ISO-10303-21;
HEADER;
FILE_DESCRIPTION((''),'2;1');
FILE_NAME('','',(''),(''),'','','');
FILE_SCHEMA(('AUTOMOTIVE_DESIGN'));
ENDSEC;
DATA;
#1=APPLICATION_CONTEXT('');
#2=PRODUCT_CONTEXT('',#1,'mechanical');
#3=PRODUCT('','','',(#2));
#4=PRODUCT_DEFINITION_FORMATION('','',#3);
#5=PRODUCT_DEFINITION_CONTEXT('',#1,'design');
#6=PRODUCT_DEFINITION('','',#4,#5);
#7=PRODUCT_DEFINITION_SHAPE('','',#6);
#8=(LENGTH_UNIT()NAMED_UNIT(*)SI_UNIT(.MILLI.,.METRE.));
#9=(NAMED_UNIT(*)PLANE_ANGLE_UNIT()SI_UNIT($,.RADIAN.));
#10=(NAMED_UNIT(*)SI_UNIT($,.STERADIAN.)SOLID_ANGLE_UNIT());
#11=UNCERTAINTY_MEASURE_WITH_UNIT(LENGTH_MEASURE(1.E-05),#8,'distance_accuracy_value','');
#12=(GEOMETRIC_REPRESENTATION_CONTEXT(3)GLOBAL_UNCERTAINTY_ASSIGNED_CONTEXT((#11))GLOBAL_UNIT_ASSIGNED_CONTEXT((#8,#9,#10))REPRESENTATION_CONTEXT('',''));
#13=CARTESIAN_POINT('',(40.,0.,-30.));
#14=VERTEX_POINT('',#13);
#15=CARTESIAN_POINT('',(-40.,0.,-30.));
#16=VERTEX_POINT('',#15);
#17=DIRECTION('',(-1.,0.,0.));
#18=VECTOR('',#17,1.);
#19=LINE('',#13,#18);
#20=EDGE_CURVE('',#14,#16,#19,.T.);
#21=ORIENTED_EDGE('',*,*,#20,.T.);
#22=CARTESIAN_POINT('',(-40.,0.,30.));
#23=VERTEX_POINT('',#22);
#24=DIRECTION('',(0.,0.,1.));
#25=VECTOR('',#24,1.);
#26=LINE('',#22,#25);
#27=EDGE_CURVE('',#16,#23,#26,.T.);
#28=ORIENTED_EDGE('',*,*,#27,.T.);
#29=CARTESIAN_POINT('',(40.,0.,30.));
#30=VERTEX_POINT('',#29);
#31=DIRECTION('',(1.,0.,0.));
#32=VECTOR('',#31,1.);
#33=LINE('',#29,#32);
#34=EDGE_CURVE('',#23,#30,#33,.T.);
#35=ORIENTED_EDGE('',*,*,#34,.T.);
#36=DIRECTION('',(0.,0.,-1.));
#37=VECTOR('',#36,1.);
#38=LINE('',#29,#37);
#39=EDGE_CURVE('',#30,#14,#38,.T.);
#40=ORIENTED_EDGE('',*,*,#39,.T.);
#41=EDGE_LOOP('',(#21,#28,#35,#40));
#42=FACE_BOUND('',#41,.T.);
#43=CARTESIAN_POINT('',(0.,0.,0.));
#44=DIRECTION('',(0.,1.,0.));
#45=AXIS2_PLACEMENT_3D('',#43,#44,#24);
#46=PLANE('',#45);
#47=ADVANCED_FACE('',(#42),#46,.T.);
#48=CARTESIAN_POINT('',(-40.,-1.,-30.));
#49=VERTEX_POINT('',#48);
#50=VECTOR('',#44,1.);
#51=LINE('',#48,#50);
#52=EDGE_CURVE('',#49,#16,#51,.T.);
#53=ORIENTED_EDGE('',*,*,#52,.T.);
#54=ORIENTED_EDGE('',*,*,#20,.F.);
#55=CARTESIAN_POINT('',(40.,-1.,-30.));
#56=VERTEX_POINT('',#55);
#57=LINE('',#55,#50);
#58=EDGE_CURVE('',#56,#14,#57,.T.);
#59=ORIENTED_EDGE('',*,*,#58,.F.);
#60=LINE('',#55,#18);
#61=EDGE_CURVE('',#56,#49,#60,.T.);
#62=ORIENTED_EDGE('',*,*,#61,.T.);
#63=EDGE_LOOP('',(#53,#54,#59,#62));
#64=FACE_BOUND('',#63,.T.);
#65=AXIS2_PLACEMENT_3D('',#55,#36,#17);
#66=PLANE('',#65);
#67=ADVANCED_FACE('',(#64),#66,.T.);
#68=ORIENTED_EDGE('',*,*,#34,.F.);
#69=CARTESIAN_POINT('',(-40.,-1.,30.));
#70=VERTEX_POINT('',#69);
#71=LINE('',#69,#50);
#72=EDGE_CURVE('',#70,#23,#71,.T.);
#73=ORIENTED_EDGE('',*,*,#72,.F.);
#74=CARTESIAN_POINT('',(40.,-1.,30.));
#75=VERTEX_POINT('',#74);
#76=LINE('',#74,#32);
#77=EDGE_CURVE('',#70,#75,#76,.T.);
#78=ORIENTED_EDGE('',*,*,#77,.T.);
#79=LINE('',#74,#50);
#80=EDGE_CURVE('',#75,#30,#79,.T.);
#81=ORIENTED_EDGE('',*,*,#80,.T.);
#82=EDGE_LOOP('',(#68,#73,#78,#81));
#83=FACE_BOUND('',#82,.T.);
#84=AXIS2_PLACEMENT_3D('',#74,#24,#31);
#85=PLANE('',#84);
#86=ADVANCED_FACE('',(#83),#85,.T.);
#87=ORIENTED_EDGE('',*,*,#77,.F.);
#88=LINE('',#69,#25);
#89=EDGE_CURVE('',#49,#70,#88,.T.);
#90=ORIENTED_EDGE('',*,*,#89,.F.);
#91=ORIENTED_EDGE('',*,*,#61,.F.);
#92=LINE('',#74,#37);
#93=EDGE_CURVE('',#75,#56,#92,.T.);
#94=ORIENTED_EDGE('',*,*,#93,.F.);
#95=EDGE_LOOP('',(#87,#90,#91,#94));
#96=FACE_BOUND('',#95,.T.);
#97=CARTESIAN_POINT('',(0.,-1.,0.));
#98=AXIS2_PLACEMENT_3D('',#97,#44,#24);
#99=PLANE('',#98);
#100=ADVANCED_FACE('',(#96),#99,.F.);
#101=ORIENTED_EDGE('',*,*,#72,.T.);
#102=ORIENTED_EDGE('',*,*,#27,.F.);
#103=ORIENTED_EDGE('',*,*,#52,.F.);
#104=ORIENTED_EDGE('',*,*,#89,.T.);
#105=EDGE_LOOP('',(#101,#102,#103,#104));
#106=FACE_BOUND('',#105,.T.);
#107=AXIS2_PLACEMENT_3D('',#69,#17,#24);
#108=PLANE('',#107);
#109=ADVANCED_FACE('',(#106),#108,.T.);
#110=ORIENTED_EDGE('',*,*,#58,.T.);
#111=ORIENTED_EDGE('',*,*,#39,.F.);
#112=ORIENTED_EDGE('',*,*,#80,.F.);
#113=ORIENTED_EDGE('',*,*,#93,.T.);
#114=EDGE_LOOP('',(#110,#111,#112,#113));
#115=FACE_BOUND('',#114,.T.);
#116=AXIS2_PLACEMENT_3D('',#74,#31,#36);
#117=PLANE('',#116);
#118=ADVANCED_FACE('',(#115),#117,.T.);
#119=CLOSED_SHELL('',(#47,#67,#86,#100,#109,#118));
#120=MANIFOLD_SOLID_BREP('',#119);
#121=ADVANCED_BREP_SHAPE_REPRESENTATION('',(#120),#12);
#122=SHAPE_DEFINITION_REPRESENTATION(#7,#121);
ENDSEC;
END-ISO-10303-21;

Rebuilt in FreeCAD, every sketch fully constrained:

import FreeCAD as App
import Part
import Sketcher

V = App.Vector
Q = App.Units.Quantity

doc = App.newDocument("Part")
params = doc.addObject("Spreadsheet::Sheet", "Params")
for row, (alias, value) in enumerate([
    ("sketch1_width", "80 mm"),
    ("sketch1_height", "60 mm"),
    ("pad1_length", "1 mm"),
], start=1):
    params.set(f"A{row}", alias)
    params.set(f"B{row}", "=" + value)
    params.setAlias(f"B{row}", alias)

body = doc.addObject("PartDesign::Body", "Body")

# Sketch on XZ plane
sketch1 = doc.addObject("Sketcher::SketchObject", "Sketch")
body.addObject(sketch1)
sketch1.AttachmentSupport = (doc.XZ_Plane, [""])
sketch1.MapMode = "FlatFace"
sketch1.addGeometry([
    Part.LineSegment(V(-40, -30, 0), V(-40, 30, 0)),
    Part.LineSegment(V(-40, 30, 0), V(40, 30, 0)),
    Part.LineSegment(V(40, 30, 0), V(40, -30, 0)),
    Part.LineSegment(V(40, -30, 0), V(-40, -30, 0)),
], False)
sketch1.addConstraint([
    Sketcher.Constraint("Coincident", 0, 2, 1, 1),
    Sketcher.Constraint("Coincident", 1, 2, 2, 1),
    Sketcher.Constraint("Coincident", 2, 2, 3, 1),
    Sketcher.Constraint("Coincident", 3, 2, 0, 1),
    Sketcher.Constraint("Vertical", 0),
    Sketcher.Constraint("Horizontal", 1),
    Sketcher.Constraint("Vertical", 2),
    Sketcher.Constraint("Horizontal", 3),
    Sketcher.Constraint("Symmetric", 0, 2, 2, 2, -1, 1),
    Sketcher.Constraint("DistanceX", 1, 1, 1, 2, Q("80 mm")),
    Sketcher.Constraint("DistanceY", 0, 1, 0, 2, Q("60 mm")),
])
sketch1.setExpression("Constraints[9]", "Params.sketch1_width")
sketch1.setExpression("Constraints[10]", "Params.sketch1_height")
pad1 = doc.addObject("PartDesign::Pad", "Pad")
body.addObject(pad1)
pad1.Profile = sketch1
pad1.setExpression("Length", "Params.pad1_length")

doc.recompute()
